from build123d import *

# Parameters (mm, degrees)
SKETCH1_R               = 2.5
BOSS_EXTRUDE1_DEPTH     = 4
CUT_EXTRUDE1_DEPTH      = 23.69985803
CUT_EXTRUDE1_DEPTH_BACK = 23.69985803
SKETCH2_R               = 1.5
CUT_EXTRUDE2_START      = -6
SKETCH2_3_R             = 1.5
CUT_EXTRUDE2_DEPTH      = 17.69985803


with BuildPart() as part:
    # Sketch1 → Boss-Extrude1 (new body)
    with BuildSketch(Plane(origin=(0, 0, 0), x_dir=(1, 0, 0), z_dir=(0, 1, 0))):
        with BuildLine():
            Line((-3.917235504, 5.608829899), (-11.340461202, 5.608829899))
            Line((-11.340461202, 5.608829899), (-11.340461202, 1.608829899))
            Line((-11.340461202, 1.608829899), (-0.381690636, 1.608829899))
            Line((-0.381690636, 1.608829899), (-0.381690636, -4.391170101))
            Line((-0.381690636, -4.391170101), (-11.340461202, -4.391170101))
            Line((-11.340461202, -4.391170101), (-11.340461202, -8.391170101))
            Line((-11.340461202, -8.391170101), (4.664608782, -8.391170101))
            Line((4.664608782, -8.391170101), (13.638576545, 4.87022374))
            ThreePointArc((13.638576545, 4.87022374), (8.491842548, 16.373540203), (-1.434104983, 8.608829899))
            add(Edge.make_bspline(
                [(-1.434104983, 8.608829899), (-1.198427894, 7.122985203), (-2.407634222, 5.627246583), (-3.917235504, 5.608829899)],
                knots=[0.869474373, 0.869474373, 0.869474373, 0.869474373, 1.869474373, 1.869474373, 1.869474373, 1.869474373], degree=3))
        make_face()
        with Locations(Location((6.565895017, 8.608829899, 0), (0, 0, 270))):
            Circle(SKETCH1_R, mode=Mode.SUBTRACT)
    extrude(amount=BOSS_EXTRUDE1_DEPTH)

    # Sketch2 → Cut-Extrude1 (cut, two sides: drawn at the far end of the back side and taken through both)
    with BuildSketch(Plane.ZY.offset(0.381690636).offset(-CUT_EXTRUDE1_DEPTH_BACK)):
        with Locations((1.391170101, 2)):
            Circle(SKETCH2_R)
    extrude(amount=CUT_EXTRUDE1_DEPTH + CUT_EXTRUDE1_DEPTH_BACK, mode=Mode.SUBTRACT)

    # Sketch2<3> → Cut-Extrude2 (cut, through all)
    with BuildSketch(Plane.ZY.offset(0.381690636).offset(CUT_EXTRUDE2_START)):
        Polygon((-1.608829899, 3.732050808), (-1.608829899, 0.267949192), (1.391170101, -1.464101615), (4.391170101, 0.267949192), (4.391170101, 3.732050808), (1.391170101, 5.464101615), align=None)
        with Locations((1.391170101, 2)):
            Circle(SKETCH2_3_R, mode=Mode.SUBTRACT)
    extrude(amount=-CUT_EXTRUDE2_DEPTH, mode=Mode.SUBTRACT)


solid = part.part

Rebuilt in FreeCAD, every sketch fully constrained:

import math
import FreeCAD as App
import Part
import Sketcher
Q = App.Units.Quantity


def add_polygon(sketch, points):
    """Adds a closed chain of lines whose ends are joined by coincident constraints."""
    first, n = sketch.GeometryCount, len(points)
    for a, b in zip(points, points[1:] + points[:1]):
        sketch.addGeometry(Part.LineSegment(App.Vector(*a, 0), App.Vector(*b, 0)), False)
    for i in range(n):
        sketch.addConstraint(Sketcher.Constraint("Coincident", first + i, 2, first + (i + 1) % n, 1))

doc = App.newDocument("Part")
body = doc.addObject("PartDesign::Body", "Body")

sketch1 = doc.addObject("Sketcher::SketchObject", "Sketch")
body.addObject(sketch1)
sketch1.AttachmentSupport = (doc.XZ_Plane, [""])
sketch1.MapMode = "FlatFace"
sketch1.addGeometry([
    Part.LineSegment(App.Vector(-3.917236, -5.60883, 0), App.Vector(-11.340461, -5.60883, 0)),
    Part.LineSegment(App.Vector(-11.340461, -5.60883, 0), App.Vector(-11.340461, -1.60883, 0)),
    Part.LineSegment(App.Vector(-11.340461, -1.60883, 0), App.Vector(-0.381691, -1.60883, 0)),
    Part.LineSegment(App.Vector(-0.381691, -1.60883, 0), App.Vector(-0.381691, 4.39117, 0)),
    Part.LineSegment(App.Vector(-0.381691, 4.39117, 0), App.Vector(-11.340461, 4.39117, 0)),
    Part.LineSegment(App.Vector(-11.340461, 4.39117, 0), App.Vector(-11.340461, 8.39117, 0)),
    Part.LineSegment(App.Vector(-11.340461, 8.39117, 0), App.Vector(4.664609, 8.39117, 0)),
    Part.LineSegment(App.Vector(4.664609, 8.39117, 0), App.Vector(13.638577, -4.870224, 0)),
    Part.ArcOfCircle(Part.Circle(App.Vector(6.565895, -8.60883, 0), App.Vector(0, 0, 1), 8), math.radians(180), math.radians(387.860846)),
    Part.BSplineCurve([App.Vector(-1.434105, -8.60883, 0), App.Vector(-1.198428, -7.122985, 0), App.Vector(-2.407634, -5.627247, 0), App.Vector(-3.917236, -5.60883, 0)], [4, 4], [0.869474373, 1.869474373], False, 3, [1, 1, 1, 1], False),
    Part.Circle(App.Vector(6.565895, -8.60883, 0), App.Vector(0, 0, 1), 2.5),
], False)
sketch1.addConstraint([
    Sketcher.Constraint("Block", 9),
    Sketcher.Constraint("Coincident", 0, 2, 1, 1),
    Sketcher.Constraint("Coincident", 1, 2, 2, 1),
    Sketcher.Constraint("Coincident", 2, 2, 3, 1),
    Sketcher.Constraint("Coincident", 3, 2, 4, 1),
    Sketcher.Constraint("Coincident", 4, 2, 5, 1),
    Sketcher.Constraint("Coincident", 5, 2, 6, 1),
    Sketcher.Constraint("Coincident", 6, 2, 7, 1),
    Sketcher.Constraint("Coincident", 7, 2, 8, 2),
    Sketcher.Constraint("Coincident", 8, 1, 9, 1),
    Sketcher.Constraint("Coincident", 9, 2, 0, 1),
    Sketcher.Constraint("Horizontal", 0),
    Sketcher.Constraint("Vertical", 1),
    Sketcher.Constraint("Horizontal", 2),
    Sketcher.Constraint("Vertical", 3),
    Sketcher.Constraint("Horizontal", 4),
    Sketcher.Constraint("Vertical", 5),
    Sketcher.Constraint("Horizontal", 6),
    Sketcher.Constraint("Coincident", 10, 3, 8, 3),
    Sketcher.Constraint("Horizontal", 10, 3, 8, 1),
    Sketcher.Constraint("Vertical", 1, 2, 4, 2),
    Sketcher.Constraint("Equal", 1, 5),
    Sketcher.Constraint("Diameter", 10, 5.0),
    Sketcher.Constraint("Radius", 8, 8.0),
    Sketcher.Constraint("DistanceY", 1, 1, 1, 2, 4.0),
    Sketcher.Constraint("DistanceY", 3, 1, 3, 2, 6.0),
    Sketcher.Constraint("DistanceX", 2, 1, 2, 2, 10.958771),
    Sketcher.Constraint("DistanceX", 6, 1, 6, 2, 16.00507),
    Sketcher.Constraint("Distance", 7, 16.012391),
    Sketcher.Constraint("DistanceX", 0, 2, 0, 1, 7.423226),
])
pad1 = doc.addObject("PartDesign::Pad", "Pad")
body.addObject(pad1)
pad1.Profile = sketch1
pad1.Length = 4
pad1.Reversed = True

sketch2 = doc.addObject("Sketcher::SketchObject", "Sketch001")
body.addObject(sketch2)
sketch2.AttachmentSupport = (doc.YZ_Plane, [""])
sketch2.MapMode = "FlatFace"
sketch2.AttachmentOffset = App.Placement(App.Vector(0, 0, -0.381691), App.Rotation())
sketch2.addGeometry(Part.Circle(App.Vector(2, 1.39117, 0), App.Vector(0, 0, 1), 1.5), False)
sketch2.addConstraint([
    Sketcher.Constraint("Diameter", 0, 3.0),
    Sketcher.Constraint("DistanceX", -1, 1, 0, 3, 2.0),
    Sketcher.Constraint("DistanceY", -1, 1, 0, 3, 1.39117),
])
pocket1 = doc.addObject("PartDesign::Pocket", "Pocket")
body.addObject(pocket1)
pocket1.Profile = sketch2
pocket1.Type = "ThroughAll"
pocket1.Midplane = True

sketch3 = doc.addObject("Sketcher::SketchObject", "Sketch002")
body.addObject(sketch3)
sketch3.AttachmentSupport = (doc.YZ_Plane, [""])
sketch3.MapMode = "FlatFace"
sketch3.AttachmentOffset = App.Placement(App.Vector(0, 0, 5.618309), App.Rotation())
add_polygon(sketch3, [(3.732051, -1.60883), (0.267949, -1.60883), (-1.464102, 1.39117), (0.267949, 4.39117), (3.732051, 4.39117), (5.464102, 1.39117)])
sketch3.addGeometry(Part.Circle(App.Vector(2, 1.39117, 0), App.Vector(0, 0, 1), 1.5), False)
sketch3.addConstraint([
    Sketcher.Constraint("Horizontal", 0),
    Sketcher.Constraint("Horizontal", 3),
    Sketcher.Constraint("Parallel", 1, 4),
    Sketcher.Constraint("Parallel", 2, 5),
    Sketcher.Constraint("Horizontal", 6, 3, 1, 2),
    Sketcher.Constraint("Horizontal", 1, 2, 4, 2),
    Sketcher.Constraint("Vertical", 0, 2, 2, 2),
    Sketcher.Constraint("Vertical", 3, 2, 5, 2),
    Sketcher.Constraint("Diameter", 6, 3.0),
    Sketcher.Constraint("Angle", 1, Q("120 deg")),
    Sketcher.Constraint("DistanceX", -1, 1, 6, 3, 2.0),
    Sketcher.Constraint("DistanceY", 0, 2, 6, 3, 3.0),
    Sketcher.Constraint("DistanceX", 0, 2, 0, 1, 3.464102),
    Sketcher.Constraint("DistanceX", 1, 2, -1, 1, 1.464102),
    Sketcher.Constraint("DistanceY", -1, 1, 6, 3, 1.39117),
])
pocket2 = doc.addObject("PartDesign::Pocket", "Pocket001")
body.addObject(pocket2)
pocket2.Profile = sketch3
pocket2.Type = "ThroughAll"
pocket2.Reversed = True

doc.recompute()
